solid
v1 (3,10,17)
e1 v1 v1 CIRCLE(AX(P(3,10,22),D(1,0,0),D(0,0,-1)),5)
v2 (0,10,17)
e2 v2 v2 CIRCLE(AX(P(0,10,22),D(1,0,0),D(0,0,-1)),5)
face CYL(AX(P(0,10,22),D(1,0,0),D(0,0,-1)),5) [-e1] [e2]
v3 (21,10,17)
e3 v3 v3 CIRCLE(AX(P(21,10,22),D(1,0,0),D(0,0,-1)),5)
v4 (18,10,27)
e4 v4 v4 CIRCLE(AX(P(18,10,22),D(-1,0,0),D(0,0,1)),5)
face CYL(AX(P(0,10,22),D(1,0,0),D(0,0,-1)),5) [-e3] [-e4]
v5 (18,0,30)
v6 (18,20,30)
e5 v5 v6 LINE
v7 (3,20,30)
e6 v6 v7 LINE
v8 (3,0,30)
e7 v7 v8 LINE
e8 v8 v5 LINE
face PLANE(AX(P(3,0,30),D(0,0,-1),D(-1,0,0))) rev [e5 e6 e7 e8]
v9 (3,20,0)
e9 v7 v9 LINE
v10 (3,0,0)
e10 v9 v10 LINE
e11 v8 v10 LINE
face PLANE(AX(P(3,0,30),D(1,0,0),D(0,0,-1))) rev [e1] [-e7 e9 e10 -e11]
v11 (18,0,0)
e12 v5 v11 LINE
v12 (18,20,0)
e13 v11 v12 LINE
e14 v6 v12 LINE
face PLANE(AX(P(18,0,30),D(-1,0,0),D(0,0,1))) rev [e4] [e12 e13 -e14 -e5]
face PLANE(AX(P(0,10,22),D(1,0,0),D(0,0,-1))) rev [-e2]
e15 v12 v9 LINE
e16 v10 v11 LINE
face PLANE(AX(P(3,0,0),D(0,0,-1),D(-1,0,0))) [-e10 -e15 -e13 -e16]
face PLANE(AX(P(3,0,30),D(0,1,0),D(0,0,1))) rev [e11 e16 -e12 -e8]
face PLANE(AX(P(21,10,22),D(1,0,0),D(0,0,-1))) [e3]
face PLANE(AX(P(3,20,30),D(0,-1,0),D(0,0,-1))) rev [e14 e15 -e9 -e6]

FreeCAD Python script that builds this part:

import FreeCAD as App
import Part
import Sketcher

V = App.Vector

doc = App.newDocument("Part")
body = doc.addObject("PartDesign::Body", "Body")

# Sketch on XY plane
sketch1 = doc.addObject("Sketcher::SketchObject", "Sketch")
body.addObject(sketch1)
sketch1.AttachmentSupport = (doc.XY_Plane, [""])
sketch1.MapMode = "FlatFace"
sketch1.addGeometry(Part.LineSegment(V(0, 20, 0), V(0, 0, 0)), False)
sketch1.addGeometry(Part.LineSegment(V(0, 0, 0), V(15, 0, 0)), False)
sketch1.addGeometry(Part.LineSegment(V(15, 0, 0), V(15, 20, 0)), False)
sketch1.addGeometry(Part.LineSegment(V(15, 20, 0), V(0, 20, 0)), False)
sketch1.addConstraint(Sketcher.Constraint("Coincident", 0, 2, 1, 1))
sketch1.addConstraint(Sketcher.Constraint("Coincident", 1, 2, 2, 1))
sketch1.addConstraint(Sketcher.Constraint("Coincident", 2, 2, 3, 1))
sketch1.addConstraint(Sketcher.Constraint("Coincident", 3, 2, 0, 1))
sketch1.addConstraint(Sketcher.Constraint("Vertical", 0))
sketch1.addConstraint(Sketcher.Constraint("Horizontal", 1))
sketch1.addConstraint(Sketcher.Constraint("Vertical", 2))
sketch1.addConstraint(Sketcher.Constraint("Horizontal", 3))
sketch1.addConstraint(Sketcher.Constraint("Coincident", 0, 2, -1, 1))
sketch1.addConstraint(Sketcher.Constraint("DistanceX", 1, 1, 1, 2, 15.0))
sketch1.addConstraint(Sketcher.Constraint("DistanceY", 0, 2, 0, 1, 20.0))
pad1 = doc.addObject("PartDesign::Pad", "Pad")
body.addObject(pad1)
pad1.Profile = sketch1
pad1.Length = 30

# Sketch on YZ plane
sketch2 = doc.addObject("Sketcher::SketchObject", "Sketch001")
body.addObject(sketch2)
sketch2.AttachmentSupport = (doc.YZ_Plane, [""])
sketch2.MapMode = "FlatFace"
sketch2.AttachmentOffset = App.Placement(V(0, 0, 15), App.Rotation())
sketch2.addGeometry(Part.Circle(V(10, 22, 0), V(0, 0, 1), 5), False)
sketch2.addConstraint(Sketcher.Constraint("Diameter", 0, 10.0))
sketch2.addConstraint(Sketcher.Constraint("DistanceX", -1, 1, 0, 3, 10.0))
sketch2.addConstraint(Sketcher.Constraint("DistanceY", -1, 1, 0, 3, 22.0))
pad2 = doc.addObject("PartDesign::Pad", "Pad001")
body.addObject(pad2)
pad2.Profile = sketch2
pad2.Type = "TwoLengths"
pad2.Length = 3
pad2.Length2 = 18
body2 = doc.addObject("PartDesign::Body", "Body001")
doc.recompute()

body.Placement = App.Placement(V(3, 0, 0), App.Rotation(V(0, 0, 1), 0))
boolean = doc.addObject("PartDesign::Boolean", "Boolean")
body2.addObject(boolean)
boolean.Type = "Fuse"
boolean.addObjects([body])

doc.recompute()
